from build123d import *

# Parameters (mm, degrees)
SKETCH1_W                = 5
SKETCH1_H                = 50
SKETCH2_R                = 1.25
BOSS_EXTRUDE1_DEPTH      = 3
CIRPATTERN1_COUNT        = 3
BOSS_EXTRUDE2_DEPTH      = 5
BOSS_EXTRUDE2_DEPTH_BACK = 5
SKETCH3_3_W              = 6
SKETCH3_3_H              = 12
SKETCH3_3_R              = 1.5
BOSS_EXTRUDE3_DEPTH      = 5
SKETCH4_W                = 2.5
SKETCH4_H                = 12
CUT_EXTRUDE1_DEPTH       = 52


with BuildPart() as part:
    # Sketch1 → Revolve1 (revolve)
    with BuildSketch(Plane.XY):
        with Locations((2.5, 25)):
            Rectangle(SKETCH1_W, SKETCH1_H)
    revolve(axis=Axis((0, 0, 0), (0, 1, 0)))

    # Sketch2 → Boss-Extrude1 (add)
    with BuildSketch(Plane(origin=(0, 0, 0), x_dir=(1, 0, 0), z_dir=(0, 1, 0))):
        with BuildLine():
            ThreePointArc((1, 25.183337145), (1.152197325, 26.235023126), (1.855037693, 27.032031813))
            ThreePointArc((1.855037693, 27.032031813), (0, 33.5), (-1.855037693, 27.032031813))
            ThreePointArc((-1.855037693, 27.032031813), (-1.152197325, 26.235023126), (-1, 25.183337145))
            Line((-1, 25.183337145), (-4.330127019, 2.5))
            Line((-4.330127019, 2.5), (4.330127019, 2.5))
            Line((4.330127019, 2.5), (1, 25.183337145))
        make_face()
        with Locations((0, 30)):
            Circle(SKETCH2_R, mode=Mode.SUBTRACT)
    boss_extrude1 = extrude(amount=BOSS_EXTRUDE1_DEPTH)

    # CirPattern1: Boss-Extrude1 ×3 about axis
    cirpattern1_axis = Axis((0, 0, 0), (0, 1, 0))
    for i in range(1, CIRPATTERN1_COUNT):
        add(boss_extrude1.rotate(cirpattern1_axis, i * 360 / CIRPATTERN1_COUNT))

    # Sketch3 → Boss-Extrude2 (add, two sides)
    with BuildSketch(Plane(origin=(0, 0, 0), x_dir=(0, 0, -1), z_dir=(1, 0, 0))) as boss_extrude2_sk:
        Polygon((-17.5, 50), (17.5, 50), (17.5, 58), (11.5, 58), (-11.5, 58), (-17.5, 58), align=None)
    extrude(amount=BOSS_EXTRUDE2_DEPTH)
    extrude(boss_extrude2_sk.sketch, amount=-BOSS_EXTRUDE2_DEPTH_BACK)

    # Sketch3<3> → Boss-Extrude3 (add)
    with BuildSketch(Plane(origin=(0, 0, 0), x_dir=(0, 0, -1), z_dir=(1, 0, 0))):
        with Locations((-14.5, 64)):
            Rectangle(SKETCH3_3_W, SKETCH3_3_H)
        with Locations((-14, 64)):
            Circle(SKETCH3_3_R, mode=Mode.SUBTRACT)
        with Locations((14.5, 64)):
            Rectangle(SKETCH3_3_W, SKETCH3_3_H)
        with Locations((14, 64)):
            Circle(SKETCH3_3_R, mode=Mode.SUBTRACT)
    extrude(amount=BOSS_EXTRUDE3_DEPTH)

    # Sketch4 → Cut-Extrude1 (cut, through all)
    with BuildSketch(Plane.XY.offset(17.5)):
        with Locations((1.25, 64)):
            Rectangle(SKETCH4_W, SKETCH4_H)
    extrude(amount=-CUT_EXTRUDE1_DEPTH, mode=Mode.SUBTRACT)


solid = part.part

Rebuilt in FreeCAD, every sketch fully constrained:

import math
import FreeCAD as App
import Part
import Sketcher
Q = App.Units.Quantity


def add_polygon(sketch, points):
    """Adds a closed chain of lines whose ends are joined by coincident constraints."""
    first, n = sketch.GeometryCount, len(points)
    for a, b in zip(points, points[1:] + points[:1]):
        sketch.addGeometry(Part.LineSegment(App.Vector(*a, 0), App.Vector(*b, 0)), False)
    for i in range(n):
        sketch.addConstraint(Sketcher.Constraint("Coincident", first + i, 2, first + (i + 1) % n, 1))

doc = App.newDocument("Part")
body = doc.addObject("PartDesign::Body", "Body")

# Sketch on XY plane
sketch1 = body.newObject("Sketcher::SketchObject", "Sketch")
sketch1.AttachmentSupport = (doc.getObject("XY_Plane"), [""])
sketch1.MapMode = "FlatFace"
add_polygon(sketch1, [(0, 50), (0, 0), (5, 0), (5, 50)])  # lines 0-3
sketch1.addConstraint([
    Sketcher.Constraint("Vertical", 0),
    Sketcher.Constraint("Horizontal", 1),
    Sketcher.Constraint("Vertical", 2),
    Sketcher.Constraint("Horizontal", 3),
    Sketcher.Constraint("Coincident", 0, 2, -1, 1),
    Sketcher.Constraint("DistanceX", 1, 1, 1, 2, Q("5 mm")),
    Sketcher.Constraint("DistanceY", 0, 2, 0, 1, Q("50 mm")),
])
revolution = body.newObject("PartDesign::Revolution", "Revolution")
revolution.Profile = sketch1
revolution.ReferenceAxis = (sketch1, ["V_Axis"])
revolution.Angle = 360

# Sketch on XZ plane
sketch2 = body.newObject("Sketcher::SketchObject", "Sketch001")
sketch2.AttachmentSupport = (doc.getObject("XZ_Plane"), [""])
sketch2.MapMode = "FlatFace"
sketch2.addGeometry([
    Part.ArcOfCircle(Part.Circle(App.Vector(2.8, -25.5, 0), App.Vector(0, 0, 1), 1.9), math.radians(172), math.radians(238)),  # 0
    Part.ArcOfCircle(Part.Circle(App.Vector(0, -30, 0), App.Vector(0, 0, 1), 3.5), math.radians(122), math.radians(418)),  # 1
    Part.ArcOfCircle(Part.Circle(App.Vector(-2.8, -25.5, 0), App.Vector(0, 0, 1), 1.9), math.radians(-58), math.radians(8)),  # 2
    Part.LineSegment(App.Vector(-1, -25.2, 0), App.Vector(-4.3, -2.5, 0)),  # 3
    Part.LineSegment(App.Vector(-4.3, -2.5, 0), App.Vector(4.3, -2.5, 0)),  # 4
    Part.LineSegment(App.Vector(4.3, -2.5, 0), App.Vector(1, -25.2, 0)),  # 5
    Part.Circle(App.Vector(0, -30, 0), App.Vector(0, 0, 1), 1.2),  # 6
], False)
sketch2.addConstraint([
    Sketcher.Constraint("Tangent", 0, 2, 1, 2),
    Sketcher.Constraint("Tangent", 1, 1, 2, 1),
    Sketcher.Constraint("Tangent", 2, 2, 3, 1),
    Sketcher.Constraint("Coincident", 3, 2, 4, 1),
    Sketcher.Constraint("Coincident", 4, 2, 5, 1),
    Sketcher.Constraint("Tangent", 5, 2, 0, 1),
    Sketcher.Constraint("Horizontal", 4),
    Sketcher.Constraint("Coincident", 6, 3, 1, 3),
    Sketcher.Constraint("Equal", 0, 2),
    Sketcher.Constraint("Symmetric", 0, 3, 2, 3, -2),
    Sketcher.Constraint("Horizontal", 2, 2, 5, 2),
    Sketcher.Constraint("Diameter", 6, Q("2.5 mm")),
    Sketcher.Constraint("Radius", 1, Q("3.5 mm")),
    Sketcher.Constraint("DistanceY", 1, 3, -1, 1, Q("30 mm")),
    Sketcher.Constraint("DistanceX", 2, 2, -1, 1, Q("1 mm")),
    Sketcher.Constraint("DistanceY", 3, 2, -1, 1, Q("2.5 mm")),
    Sketcher.Constraint("Radius", 0, Q("1.861271 mm")),
    Sketcher.Constraint("Distance", 3, Q("22.926481 mm")),
])
pad1 = body.newObject("PartDesign::Pad", "Pad")
pad1.Profile = sketch2
pad1.Length = 3
pad1.Reversed = True
doc.recompute()

polarpattern = body.newObject("PartDesign::PolarPattern", "PolarPattern")
polarpattern.Originals = [pad1]
polarpattern.Axis = (doc.getObject("Y_Axis"), [""])
polarpattern.Angle = 360
polarpattern.Occurrences = 3
body.Tip = polarpattern

# Sketch on YZ plane
sketch3 = body.newObject("Sketcher::SketchObject", "Sketch002")
sketch3.AttachmentSupport = (doc.getObject("YZ_Plane"), [""])
sketch3.MapMode = "FlatFace"
add_polygon(sketch3, [(50, 18), (50, -18), (58, -18), (58, 18)])  # lines 0-3
sketch3.addConstraint([
    Sketcher.Constraint("Vertical", 0),
    Sketcher.Constraint("Horizontal", 1),
    Sketcher.Constraint("Vertical", 2),
    Sketcher.Constraint("Horizontal", 3),
    Sketcher.Constraint("DistanceX", 1, 1, 1, 2, Q("8 mm")),
    Sketcher.Constraint("DistanceY", 0, 2, 0, 1, Q("35 mm")),
    Sketcher.Constraint("DistanceX", -1, 1, 0, 2, Q("50 mm")),
    Sketcher.Constraint("DistanceY", 0, 2, -1, 1, Q("17.5 mm")),
])
pad2 = body.newObject("PartDesign::Pad", "Pad001")
pad2.Profile = sketch3
pad2.Type = "TwoLengths"
pad2.Length = 5
pad2.Length2 = 5

# Sketch on YZ plane
sketch4 = body.newObject("Sketcher::SketchObject", "Sketch003")
sketch4.AttachmentSupport = (doc.getObject("YZ_Plane"), [""])
sketch4.MapMode = "FlatFace"
add_polygon(sketch4, [(70, 17.5), (58, 17.5), (58, 11.5), (70, 11.5)])  # lines 0-3
sketch4.addGeometry(Part.Circle(App.Vector(64, 14, 0), App.Vector(0, 0, 1), 1.5), False)  # 4
add_polygon(sketch4, [(70, -11.5), (58, -11.5), (58, -17.5), (70, -17.5)])  # lines 5-8
sketch4.addGeometry(Part.Circle(App.Vector(64, -14, 0), App.Vector(0, 0, 1), 1.5), False)  # 9
sketch4.addConstraint([
    Sketcher.Constraint("Horizontal", 0),
    Sketcher.Constraint("Vertical", 1),
    Sketcher.Constraint("Horizontal", 2),
    Sketcher.Constraint("Vertical", 3),
    Sketcher.Constraint("Horizontal", 5),
    Sketcher.Constraint("Vertical", 6),
    Sketcher.Constraint("Horizontal", 7),
    Sketcher.Constraint("Vertical", 8),
    Sketcher.Constraint("Equal", 4, 9),
    Sketcher.Constraint("Symmetric", 4, 3, 9, 3, -1),
    Sketcher.Constraint("Symmetric", 1, 2, 5, 2, -1),
    Sketcher.Constraint("Symmetric", 3, 2, 7, 2, -1),
    Sketcher.Constraint("Diameter", 4, Q("3 mm")),
    Sketcher.Constraint("DistanceX", 0, 2, 0, 1, Q("12 mm")),
    Sketcher.Constraint("DistanceY", 1, 2, 1, 1, Q("6 mm")),
    Sketcher.Constraint("DistanceX", -1, 1, 4, 3, Q("64 mm")),
    Sketcher.Constraint("DistanceY", -1, 1, 4, 3, Q("14 mm")),
    Sketcher.Constraint("DistanceX", -1, 1, 0, 2, Q("58 mm")),
    Sketcher.Constraint("DistanceY", 5, 2, 1, 2, Q("23 mm")),
])
pad3 = body.newObject("PartDesign::Pad", "Pad002")
pad3.Profile = sketch4
pad3.Length = 5

# Sketch on XY plane
sketch5 = body.newObject("Sketcher::SketchObject", "Sketch004")
sketch5.AttachmentSupport = (doc.getObject("XY_Plane"), [""])
sketch5.MapMode = "FlatFace"
sketch5.AttachmentOffset = App.Placement(App.Vector(0, 0, 17.5), App.Rotation())
add_polygon(sketch5, [(0, 70), (0, 58), (2.5, 58), (2.5, 70)])  # lines 0-3
sketch5.addConstraint([
    Sketcher.Constraint("Vertical", 0),
    Sketcher.Constraint("Horizontal", 1),
    Sketcher.Constraint("Vertical", 2),
    Sketcher.Constraint("Horizontal", 3),
    Sketcher.Constraint("PointOnObject", 0, 2, -2),
    Sketcher.Constraint("DistanceY", 0, 2, 0, 1, Q("12 mm")),
    Sketcher.Constraint("DistanceX", 1, 1, 1, 2, Q("2.5 mm")),
    Sketcher.Constraint("DistanceY", -1, 1, 0, 2, Q("58 mm")),
])
pocket1 = body.newObject("PartDesign::Pocket", "Pocket")
pocket1.Profile = sketch5
pocket1.Type = "ThroughAll"

doc.recompute()
